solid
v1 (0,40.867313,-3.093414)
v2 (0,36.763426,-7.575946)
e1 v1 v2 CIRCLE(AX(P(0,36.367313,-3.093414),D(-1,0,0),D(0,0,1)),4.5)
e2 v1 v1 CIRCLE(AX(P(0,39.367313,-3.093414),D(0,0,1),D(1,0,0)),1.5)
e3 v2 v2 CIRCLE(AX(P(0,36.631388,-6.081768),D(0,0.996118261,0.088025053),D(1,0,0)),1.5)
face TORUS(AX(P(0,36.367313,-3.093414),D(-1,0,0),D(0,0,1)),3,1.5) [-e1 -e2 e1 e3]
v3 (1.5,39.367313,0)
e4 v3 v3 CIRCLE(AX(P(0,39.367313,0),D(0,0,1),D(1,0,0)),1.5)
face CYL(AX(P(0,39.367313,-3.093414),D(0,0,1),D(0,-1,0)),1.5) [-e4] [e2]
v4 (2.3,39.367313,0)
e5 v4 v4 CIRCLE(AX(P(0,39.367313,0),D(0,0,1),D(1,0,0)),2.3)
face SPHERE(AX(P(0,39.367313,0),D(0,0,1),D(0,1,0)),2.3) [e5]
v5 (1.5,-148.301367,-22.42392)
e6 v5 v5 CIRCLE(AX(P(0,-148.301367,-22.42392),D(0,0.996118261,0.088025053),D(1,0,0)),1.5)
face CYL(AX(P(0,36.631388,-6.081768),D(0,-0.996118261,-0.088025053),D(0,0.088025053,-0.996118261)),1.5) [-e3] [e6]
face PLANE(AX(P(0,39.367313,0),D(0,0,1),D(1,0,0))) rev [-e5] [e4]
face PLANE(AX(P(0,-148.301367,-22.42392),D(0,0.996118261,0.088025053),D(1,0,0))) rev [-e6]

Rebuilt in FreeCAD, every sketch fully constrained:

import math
import FreeCAD as App
import Part
import Sketcher

V = App.Vector
Q = App.Units.Quantity

doc = App.newDocument("Part")
body = doc.addObject("PartDesign::Body", "Body")

# Sketch on XY plane
sketch1 = body.newObject("Sketcher::SketchObject", "Sketch")
sketch1.AttachmentSupport = (doc.getObject("XY_Plane"), [""])
sketch1.MapMode = "FlatFace"
sketch1.addGeometry(Part.Circle(V(0, 39.4, 0), V(0, 0, 1), 1.5), False)
sketch1.addConstraint([
    Sketcher.Constraint("PointOnObject", 0, 3, -2),
    Sketcher.Constraint("Diameter", 0, Q("3 mm")),
    Sketcher.Constraint("DistanceY", -1, 1, 0, 3, Q("39.367313 mm")),
])

# Sketch on YZ plane
sketch2 = body.newObject("Sketcher::SketchObject", "Sketch001")
sketch2.AttachmentSupport = (doc.getObject("YZ_Plane"), [""])
sketch2.MapMode = "FlatFace"
sketch2.addGeometry([
    Part.LineSegment(V(39.4, 0, 0), V(39.4, -3.1, 0)),
    Part.ArcOfCircle(Part.Circle(V(36.4, -3.1, 0), V(0, 0, 1), 3), math.radians(-85), math.radians(0)),
    Part.LineSegment(V(36.6, -6.1, 0), V(-148.3, -22.4, 0)),
], False)
sketch2.addConstraint([
    Sketcher.Constraint("Tangent", 0, 2, 1, 2),
    Sketcher.Constraint("Tangent", 1, 1, 2, 1),
    Sketcher.Constraint("Vertical", 0),
    Sketcher.Constraint("PointOnObject", 0, 1, -1),
    Sketcher.Constraint("Radius", 1, Q("3 mm")),
    Sketcher.Constraint("Angle", 2, Q("-174.95 deg")),
    Sketcher.Constraint("DistanceY", 0, 2, 0, 1, Q("3.093414 mm")),
    Sketcher.Constraint("DistanceX", -1, 1, 1, 1, Q("36.631388 mm")),
    Sketcher.Constraint("DistanceY", 2, 2, -1, 1, Q("22.42392 mm")),
])
doc.recompute()

additivepipe = body.newObject("PartDesign::AdditivePipe", "AdditivePipe")
additivepipe.Profile = sketch1
additivepipe.Spine = (sketch2, ["Edge1", "Edge2", "Edge3"])

# Sketch on YZ plane
sketch3 = body.newObject("Sketcher::SketchObject", "Sketch002")
sketch3.AttachmentSupport = (doc.getObject("YZ_Plane"), [""])
sketch3.MapMode = "FlatFace"
sketch3.addGeometry([
    Part.LineSegment(V(39.4, 0, 0), V(41.7, 0, 0)),
    Part.ArcOfCircle(Part.Circle(V(39.4, 0, 0), V(0, 0, 1), 2.3), math.radians(0), math.radians(90)),
    Part.LineSegment(V(39.4, 2.3, 0), V(39.4, 0, 0)),
], False)
sketch3.addGeometry(Part.LineSegment(V(39.4, 2.3, 0), V(39.4, 0, 0)), True)  # axis
sketch3.addConstraint([
    Sketcher.Constraint("Coincident", 0, 2, 1, 1),
    Sketcher.Constraint("Coincident", 1, 2, 2, 1),
    Sketcher.Constraint("Coincident", 2, 2, 0, 1),
    Sketcher.Constraint("Horizontal", 0),
    Sketcher.Constraint("Vertical", 2),
    Sketcher.Constraint("Vertical", 3),
    Sketcher.Constraint("Coincident", 2, 2, 1, 3),
    Sketcher.Constraint("Coincident", 3, 1, 1, 2),
    Sketcher.Constraint("PointOnObject", 1, 3, -1),
    Sketcher.Constraint("PointOnObject", 3, 2, -1),
    Sketcher.Constraint("Radius", 1, Q("2.3 mm")),
    Sketcher.Constraint("DistanceX", -1, 1, 1, 3, Q("39.367313 mm")),
])
revolution = body.newObject("PartDesign::Revolution", "Revolution")
revolution.Profile = sketch3
revolution.ReferenceAxis = (sketch3, ["Axis0"])
revolution.Angle = 360

doc.recompute()
